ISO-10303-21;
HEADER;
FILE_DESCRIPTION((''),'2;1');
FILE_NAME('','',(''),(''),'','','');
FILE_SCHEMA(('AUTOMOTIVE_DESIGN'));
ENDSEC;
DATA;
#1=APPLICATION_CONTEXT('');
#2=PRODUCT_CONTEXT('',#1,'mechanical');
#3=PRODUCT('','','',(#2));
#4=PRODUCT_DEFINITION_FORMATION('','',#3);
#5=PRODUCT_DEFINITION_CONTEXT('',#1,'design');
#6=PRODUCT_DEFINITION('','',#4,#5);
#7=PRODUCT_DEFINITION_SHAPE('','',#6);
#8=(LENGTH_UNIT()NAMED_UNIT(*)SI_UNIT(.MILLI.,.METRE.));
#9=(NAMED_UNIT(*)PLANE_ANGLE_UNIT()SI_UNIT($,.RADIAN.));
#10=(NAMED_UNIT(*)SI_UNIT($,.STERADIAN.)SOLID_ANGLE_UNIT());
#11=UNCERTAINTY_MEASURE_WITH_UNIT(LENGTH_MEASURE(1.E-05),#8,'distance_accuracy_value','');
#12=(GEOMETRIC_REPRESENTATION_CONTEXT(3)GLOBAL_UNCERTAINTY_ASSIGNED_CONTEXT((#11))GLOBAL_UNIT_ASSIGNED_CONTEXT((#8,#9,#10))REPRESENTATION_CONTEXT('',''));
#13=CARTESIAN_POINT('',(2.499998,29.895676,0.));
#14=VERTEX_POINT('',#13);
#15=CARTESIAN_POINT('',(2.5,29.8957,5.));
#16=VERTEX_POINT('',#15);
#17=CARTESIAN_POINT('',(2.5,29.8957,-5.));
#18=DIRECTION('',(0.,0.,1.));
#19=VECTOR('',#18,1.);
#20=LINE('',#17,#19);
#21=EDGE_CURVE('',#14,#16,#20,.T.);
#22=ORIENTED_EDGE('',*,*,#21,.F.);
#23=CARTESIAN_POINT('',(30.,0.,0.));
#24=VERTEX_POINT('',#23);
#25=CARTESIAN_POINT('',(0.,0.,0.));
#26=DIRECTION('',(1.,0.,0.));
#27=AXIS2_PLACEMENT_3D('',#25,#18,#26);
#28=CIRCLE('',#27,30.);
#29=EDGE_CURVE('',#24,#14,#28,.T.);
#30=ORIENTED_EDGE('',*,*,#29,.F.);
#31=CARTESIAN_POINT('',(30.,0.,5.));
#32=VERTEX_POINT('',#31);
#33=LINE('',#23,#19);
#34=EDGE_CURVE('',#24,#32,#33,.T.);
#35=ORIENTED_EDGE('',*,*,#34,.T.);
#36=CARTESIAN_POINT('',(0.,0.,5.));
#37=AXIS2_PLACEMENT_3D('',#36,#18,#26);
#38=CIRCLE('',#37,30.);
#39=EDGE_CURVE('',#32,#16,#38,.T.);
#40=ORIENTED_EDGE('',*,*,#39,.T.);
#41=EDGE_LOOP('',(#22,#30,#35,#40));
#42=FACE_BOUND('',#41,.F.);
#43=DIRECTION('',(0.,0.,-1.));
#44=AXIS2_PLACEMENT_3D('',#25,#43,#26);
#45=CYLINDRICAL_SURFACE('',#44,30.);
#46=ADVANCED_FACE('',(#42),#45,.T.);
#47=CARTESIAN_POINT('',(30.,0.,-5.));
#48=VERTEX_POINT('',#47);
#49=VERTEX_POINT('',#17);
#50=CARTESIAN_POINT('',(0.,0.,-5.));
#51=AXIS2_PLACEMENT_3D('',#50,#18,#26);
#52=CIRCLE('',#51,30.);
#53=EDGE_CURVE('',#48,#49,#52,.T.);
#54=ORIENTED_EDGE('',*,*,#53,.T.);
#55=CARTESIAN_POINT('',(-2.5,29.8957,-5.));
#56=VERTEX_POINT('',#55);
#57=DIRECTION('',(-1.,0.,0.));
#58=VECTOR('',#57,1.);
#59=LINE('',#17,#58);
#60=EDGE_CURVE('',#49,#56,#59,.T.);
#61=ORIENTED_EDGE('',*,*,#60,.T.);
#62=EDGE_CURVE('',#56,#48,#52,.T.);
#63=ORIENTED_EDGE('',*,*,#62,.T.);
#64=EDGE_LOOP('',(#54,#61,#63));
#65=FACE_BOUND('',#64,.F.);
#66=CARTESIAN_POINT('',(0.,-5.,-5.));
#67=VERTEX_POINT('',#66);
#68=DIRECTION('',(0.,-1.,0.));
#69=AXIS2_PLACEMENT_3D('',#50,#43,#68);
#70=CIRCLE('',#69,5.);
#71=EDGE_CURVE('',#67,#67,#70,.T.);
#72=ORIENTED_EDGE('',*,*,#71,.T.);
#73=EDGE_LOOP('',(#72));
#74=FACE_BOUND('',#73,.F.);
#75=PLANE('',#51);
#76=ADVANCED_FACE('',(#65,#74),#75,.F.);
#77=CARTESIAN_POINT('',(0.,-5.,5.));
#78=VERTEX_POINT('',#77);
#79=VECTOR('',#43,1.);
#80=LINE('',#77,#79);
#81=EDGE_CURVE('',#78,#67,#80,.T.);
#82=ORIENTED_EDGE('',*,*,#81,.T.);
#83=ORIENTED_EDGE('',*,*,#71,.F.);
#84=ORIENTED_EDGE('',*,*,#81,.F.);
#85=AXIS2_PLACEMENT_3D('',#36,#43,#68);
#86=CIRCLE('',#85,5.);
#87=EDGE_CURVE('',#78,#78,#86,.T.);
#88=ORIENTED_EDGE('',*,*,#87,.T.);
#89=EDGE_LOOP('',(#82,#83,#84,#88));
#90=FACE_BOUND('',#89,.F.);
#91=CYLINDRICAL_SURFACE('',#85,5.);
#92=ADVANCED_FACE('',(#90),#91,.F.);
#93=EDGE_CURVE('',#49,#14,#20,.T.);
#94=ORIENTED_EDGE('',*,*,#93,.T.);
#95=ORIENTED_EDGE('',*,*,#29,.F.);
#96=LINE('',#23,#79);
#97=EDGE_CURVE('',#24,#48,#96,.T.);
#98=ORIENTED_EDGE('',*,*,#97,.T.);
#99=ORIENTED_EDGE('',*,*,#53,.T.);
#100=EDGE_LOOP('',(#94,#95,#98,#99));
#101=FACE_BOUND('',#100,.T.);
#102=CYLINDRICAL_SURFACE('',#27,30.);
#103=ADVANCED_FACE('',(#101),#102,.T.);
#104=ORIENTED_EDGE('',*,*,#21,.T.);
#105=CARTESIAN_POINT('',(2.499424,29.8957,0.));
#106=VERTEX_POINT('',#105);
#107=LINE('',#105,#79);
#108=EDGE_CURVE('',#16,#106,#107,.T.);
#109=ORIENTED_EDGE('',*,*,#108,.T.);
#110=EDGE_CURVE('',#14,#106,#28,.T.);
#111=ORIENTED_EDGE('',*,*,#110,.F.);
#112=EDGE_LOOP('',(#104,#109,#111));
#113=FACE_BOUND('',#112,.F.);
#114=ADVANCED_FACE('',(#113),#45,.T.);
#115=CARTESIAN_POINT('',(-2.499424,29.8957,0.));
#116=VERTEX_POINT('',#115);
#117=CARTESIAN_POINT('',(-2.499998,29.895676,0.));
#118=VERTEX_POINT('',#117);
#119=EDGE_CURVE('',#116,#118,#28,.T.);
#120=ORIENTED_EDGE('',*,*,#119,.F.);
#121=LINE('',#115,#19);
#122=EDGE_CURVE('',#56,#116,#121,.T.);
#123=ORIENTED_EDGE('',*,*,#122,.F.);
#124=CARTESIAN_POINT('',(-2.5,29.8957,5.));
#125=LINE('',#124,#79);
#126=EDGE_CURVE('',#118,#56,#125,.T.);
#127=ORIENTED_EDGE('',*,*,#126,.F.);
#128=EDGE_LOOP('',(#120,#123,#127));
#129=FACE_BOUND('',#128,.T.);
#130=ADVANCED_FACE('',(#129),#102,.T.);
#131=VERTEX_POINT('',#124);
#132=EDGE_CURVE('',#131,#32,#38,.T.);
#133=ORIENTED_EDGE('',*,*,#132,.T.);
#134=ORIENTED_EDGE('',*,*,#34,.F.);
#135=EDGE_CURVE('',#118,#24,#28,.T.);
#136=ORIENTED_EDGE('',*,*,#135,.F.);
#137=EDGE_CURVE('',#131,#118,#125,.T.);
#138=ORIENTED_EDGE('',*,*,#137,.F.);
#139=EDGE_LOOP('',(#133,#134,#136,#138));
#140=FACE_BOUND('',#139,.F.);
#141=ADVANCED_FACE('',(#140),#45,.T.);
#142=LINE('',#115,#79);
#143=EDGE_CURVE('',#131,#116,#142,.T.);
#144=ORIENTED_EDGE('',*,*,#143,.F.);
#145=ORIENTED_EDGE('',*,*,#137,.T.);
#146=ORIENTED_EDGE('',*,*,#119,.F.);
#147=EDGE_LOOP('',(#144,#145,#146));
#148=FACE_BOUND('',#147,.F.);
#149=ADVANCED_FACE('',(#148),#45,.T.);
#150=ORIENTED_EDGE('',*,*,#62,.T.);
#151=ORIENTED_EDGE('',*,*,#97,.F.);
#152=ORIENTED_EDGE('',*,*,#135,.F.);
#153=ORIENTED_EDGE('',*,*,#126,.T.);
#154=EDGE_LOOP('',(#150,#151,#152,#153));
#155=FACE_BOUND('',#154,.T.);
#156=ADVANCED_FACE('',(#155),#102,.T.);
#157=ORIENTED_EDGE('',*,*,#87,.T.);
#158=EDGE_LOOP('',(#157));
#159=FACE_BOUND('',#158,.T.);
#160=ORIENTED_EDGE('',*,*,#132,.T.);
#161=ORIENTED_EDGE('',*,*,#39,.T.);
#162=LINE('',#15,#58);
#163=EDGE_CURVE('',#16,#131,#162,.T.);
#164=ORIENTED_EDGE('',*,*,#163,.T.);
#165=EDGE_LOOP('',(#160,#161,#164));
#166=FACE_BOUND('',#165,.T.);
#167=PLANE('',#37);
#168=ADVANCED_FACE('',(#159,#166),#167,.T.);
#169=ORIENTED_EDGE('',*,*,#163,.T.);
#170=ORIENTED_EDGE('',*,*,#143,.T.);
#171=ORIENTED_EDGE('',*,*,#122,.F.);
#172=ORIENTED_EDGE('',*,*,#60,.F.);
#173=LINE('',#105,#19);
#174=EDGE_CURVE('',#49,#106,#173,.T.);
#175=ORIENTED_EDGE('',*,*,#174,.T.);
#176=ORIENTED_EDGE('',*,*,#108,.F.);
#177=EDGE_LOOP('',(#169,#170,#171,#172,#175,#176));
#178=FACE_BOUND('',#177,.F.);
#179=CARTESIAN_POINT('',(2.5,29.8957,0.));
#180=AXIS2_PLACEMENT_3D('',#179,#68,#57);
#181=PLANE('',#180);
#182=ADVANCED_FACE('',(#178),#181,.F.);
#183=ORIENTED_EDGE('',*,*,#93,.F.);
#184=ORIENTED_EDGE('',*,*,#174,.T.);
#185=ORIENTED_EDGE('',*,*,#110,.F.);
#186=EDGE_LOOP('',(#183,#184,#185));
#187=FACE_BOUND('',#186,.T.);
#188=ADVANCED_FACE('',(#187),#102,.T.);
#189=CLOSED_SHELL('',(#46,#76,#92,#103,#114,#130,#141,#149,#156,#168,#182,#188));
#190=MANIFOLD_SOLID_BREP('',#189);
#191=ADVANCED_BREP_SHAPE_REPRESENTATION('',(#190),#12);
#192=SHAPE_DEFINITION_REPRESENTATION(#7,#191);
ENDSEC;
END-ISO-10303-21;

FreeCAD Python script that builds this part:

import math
import FreeCAD as App
import Part
import Sketcher

V = App.Vector

doc = App.newDocument("Part")
body = doc.addObject("PartDesign::Body", "Body")

# Sketch on XY plane
sketch1 = doc.addObject("Sketcher::SketchObject", "Sketch")
body.addObject(sketch1)
sketch1.AttachmentSupport = (doc.XY_Plane, [""])
sketch1.MapMode = "FlatFace"
sketch1.addGeometry(Part.Circle(V(0, 0, 0), V(0, 0, 1), 30), False)
sketch1.addConstraint([
    Sketcher.Constraint("Coincident", 0, 3, -1, 1),
    Sketcher.Constraint("Diameter", 0, 60.0),
])
pad1 = doc.addObject("PartDesign::Pad", "Pad")
body.addObject(pad1)
pad1.Profile = sketch1
pad1.Length = 10
pad1.Midplane = True

# Sketch on XY plane
sketch2 = doc.addObject("Sketcher::SketchObject", "Sketch001")
body.addObject(sketch2)
sketch2.AttachmentSupport = (doc.XY_Plane, [""])
sketch2.MapMode = "FlatFace"
sketch2.addGeometry([
    Part.LineSegment(V(-2.5, 29.9, 0), V(2.5, 29.9, 0)),
    Part.ArcOfCircle(Part.Circle(V(0, 0, 0), V(0, 0, 1), 30), math.radians(85.22), math.radians(94.78)),
], False)
sketch2.addConstraint([
    Sketcher.Constraint("Coincident", 0, 1, 1, 2),
    Sketcher.Constraint("Coincident", 1, 1, 0, 2),
    Sketcher.Constraint("Horizontal", 0),
    Sketcher.Constraint("Coincident", 1, 3, -1, 1),
    Sketcher.Constraint("DistanceX", 0, 1, 0, 2, 5.0),
    Sketcher.Constraint("Radius", 1, 30.0),
])
pocket1 = doc.addObject("PartDesign::Pocket", "Pocket")
body.addObject(pocket1)
pocket1.Profile = sketch2
pocket1.Length = 10
pocket1.Midplane = True

# Sketch on XY plane
sketch3 = doc.addObject("Sketcher::SketchObject", "Sketch002")
body.addObject(sketch3)
sketch3.AttachmentSupport = (doc.XY_Plane, [""])
sketch3.MapMode = "FlatFace"
sketch3.AttachmentOffset = App.Placement(V(0, 0, 5), App.Rotation())
sketch3.addGeometry(Part.Circle(V(0, 0, 0), V(0, 0, 1), 5), False)
sketch3.addConstraint([
    Sketcher.Constraint("Coincident", 0, 3, -1, 1),
    Sketcher.Constraint("Diameter", 0, 10.0),
])
doc.recompute()
hole = doc.addObject("PartDesign::Hole", "Hole")
body.addObject(hole)
hole.Profile = sketch3
hole.ThreadType = "None"
hole.Diameter = 10
hole.DepthType = "ThroughAll"

doc.recompute()
